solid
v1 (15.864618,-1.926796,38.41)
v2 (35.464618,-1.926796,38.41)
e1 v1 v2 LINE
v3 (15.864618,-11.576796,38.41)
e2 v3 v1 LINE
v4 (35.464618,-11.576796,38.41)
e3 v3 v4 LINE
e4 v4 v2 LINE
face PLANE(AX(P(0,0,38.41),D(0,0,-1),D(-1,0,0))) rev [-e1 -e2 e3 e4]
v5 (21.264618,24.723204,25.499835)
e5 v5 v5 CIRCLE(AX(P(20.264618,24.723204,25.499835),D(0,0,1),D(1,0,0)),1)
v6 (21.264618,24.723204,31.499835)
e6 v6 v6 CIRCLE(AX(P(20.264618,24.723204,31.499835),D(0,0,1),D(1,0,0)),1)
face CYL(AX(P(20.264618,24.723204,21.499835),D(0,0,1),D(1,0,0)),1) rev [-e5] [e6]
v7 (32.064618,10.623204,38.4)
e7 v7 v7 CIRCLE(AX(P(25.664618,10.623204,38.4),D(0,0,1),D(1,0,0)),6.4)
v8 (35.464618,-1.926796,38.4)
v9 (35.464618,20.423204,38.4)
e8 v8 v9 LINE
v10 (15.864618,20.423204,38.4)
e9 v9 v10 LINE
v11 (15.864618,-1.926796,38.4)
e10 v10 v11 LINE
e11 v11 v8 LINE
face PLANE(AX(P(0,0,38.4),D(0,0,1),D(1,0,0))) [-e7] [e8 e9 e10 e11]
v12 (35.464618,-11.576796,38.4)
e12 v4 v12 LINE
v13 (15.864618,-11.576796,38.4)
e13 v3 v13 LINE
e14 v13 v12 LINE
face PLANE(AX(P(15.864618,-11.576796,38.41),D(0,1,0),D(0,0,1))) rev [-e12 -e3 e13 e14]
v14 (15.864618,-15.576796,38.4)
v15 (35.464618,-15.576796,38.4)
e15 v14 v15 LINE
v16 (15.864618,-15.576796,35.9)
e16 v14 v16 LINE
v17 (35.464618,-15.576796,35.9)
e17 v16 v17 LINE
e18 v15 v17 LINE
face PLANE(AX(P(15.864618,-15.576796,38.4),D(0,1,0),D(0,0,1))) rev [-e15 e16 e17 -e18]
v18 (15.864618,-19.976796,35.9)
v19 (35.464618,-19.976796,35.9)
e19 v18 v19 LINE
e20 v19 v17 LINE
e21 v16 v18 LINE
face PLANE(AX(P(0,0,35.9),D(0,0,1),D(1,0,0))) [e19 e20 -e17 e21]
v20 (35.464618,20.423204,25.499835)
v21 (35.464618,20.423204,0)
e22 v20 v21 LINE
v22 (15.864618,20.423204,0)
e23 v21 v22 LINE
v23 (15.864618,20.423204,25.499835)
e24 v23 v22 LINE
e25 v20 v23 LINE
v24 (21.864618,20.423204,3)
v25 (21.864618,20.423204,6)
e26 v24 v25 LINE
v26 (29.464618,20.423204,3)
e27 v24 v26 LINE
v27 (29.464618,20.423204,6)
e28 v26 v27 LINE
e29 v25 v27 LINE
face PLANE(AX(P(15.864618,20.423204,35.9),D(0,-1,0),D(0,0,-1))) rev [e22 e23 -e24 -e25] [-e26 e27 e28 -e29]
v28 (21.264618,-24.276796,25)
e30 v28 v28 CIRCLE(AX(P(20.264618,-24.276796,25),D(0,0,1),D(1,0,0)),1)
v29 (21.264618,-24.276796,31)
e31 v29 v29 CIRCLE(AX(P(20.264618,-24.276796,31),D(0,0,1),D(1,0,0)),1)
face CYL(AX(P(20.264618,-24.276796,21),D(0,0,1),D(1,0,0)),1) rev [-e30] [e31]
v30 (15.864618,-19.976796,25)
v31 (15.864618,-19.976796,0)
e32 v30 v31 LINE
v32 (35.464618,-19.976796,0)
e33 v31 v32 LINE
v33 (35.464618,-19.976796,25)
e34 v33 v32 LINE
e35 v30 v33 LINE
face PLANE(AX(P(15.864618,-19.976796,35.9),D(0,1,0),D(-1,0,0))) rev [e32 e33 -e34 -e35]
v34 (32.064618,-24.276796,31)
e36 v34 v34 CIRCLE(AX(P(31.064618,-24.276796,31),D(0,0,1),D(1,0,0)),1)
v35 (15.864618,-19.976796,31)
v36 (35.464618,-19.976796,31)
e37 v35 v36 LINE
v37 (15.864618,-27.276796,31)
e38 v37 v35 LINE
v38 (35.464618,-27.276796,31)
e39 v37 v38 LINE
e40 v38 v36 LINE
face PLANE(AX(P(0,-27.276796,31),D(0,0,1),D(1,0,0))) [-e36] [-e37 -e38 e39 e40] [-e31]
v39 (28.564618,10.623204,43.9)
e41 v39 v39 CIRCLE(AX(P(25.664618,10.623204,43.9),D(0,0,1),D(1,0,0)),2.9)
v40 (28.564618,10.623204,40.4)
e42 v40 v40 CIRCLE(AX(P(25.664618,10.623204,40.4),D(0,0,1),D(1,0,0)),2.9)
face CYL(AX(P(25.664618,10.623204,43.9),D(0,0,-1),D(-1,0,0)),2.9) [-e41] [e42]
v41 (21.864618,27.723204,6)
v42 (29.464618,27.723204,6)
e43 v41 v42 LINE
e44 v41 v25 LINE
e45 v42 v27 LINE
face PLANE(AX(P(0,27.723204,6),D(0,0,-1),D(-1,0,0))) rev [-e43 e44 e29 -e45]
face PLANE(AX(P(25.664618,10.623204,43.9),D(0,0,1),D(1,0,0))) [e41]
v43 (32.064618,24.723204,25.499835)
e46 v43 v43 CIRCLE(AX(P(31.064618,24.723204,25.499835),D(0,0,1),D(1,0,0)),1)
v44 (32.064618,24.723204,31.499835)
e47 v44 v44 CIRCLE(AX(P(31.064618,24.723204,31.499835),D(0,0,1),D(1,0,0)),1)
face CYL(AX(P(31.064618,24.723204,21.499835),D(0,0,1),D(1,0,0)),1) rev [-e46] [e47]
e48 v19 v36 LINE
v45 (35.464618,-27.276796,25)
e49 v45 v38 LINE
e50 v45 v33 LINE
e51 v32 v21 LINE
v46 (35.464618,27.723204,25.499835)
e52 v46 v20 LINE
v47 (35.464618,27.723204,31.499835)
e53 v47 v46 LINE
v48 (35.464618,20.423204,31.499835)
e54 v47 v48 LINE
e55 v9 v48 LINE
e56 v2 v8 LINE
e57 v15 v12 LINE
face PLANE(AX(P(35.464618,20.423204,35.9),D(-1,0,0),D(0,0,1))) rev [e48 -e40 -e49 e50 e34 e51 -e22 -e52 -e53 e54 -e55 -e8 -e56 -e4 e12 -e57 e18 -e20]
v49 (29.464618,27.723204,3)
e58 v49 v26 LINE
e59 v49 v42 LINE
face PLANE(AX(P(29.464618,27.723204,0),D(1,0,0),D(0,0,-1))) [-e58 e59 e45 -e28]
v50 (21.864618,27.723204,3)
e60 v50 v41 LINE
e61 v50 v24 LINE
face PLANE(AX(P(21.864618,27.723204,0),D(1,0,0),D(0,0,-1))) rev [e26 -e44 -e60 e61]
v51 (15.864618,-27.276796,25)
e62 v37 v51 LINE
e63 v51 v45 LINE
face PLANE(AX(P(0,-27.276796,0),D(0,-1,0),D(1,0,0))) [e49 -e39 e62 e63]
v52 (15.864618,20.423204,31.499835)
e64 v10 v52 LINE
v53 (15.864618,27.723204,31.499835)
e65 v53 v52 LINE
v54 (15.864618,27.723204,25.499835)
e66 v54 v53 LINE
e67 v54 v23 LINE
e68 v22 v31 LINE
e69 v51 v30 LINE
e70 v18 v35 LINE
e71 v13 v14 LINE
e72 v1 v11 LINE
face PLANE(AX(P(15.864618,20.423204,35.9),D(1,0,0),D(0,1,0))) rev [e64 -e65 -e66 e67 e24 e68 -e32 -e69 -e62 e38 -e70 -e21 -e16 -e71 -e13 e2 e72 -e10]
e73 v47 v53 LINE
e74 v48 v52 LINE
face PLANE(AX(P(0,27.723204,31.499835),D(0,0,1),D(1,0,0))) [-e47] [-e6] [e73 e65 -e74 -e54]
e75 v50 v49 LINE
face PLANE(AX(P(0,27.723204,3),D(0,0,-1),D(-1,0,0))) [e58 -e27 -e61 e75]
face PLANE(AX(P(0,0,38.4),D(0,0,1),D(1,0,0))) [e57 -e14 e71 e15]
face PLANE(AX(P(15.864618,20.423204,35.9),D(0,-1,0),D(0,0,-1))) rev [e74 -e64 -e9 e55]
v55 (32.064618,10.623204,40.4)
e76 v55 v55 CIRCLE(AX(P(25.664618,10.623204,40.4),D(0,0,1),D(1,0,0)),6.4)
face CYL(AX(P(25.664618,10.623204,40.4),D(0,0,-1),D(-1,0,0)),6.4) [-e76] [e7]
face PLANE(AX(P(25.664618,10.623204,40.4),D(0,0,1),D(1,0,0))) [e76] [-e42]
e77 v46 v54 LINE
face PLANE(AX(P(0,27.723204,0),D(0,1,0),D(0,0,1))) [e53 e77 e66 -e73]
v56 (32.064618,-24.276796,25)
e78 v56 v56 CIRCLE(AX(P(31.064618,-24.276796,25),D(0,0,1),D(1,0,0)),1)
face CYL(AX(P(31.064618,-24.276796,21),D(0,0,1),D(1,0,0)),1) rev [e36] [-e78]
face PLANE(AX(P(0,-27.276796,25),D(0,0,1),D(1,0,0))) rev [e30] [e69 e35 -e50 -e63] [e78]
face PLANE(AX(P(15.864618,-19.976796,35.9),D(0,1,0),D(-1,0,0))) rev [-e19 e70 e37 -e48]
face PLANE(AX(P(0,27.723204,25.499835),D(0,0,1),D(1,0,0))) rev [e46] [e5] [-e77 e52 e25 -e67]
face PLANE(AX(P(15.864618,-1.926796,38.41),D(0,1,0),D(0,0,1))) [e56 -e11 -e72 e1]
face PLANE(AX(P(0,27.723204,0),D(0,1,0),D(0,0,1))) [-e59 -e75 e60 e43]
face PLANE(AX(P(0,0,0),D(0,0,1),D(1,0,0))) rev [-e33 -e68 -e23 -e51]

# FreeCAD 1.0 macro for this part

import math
import FreeCAD as App
import Part
import Sketcher
Q = App.Units.Quantity

doc = App.newDocument("Part")
params = doc.addObject("Spreadsheet::Sheet", "Params")
for row, (alias, value) in enumerate([
    ("sketch1_width", "19.6 mm"),
    ("sketch1_height", "40.4 mm"),
    ("pad1_length", "35.9 mm"),
    ("sketch2_height", "36 mm"),
    ("sketch2_width", "19.6 mm"),
    ("pad2_length", "2.5 mm"),
    ("sketch3_height", "6 mm"),
    ("sketch3_width", "19.6 mm"),
    ("pad3_length", "7.3 mm"),
    ("sketch4_height", "6 mm"),
    ("sketch4_width", "19.6 mm"),
    ("pad4_length", "7.3 mm"),
    ("sketch5_height", "3 mm"),
    ("sketch5_width", "7.6 mm"),
    ("pad5_length", "7.3 mm"),
    ("sketch6_diameter", "12.8 mm"),
    ("pad6_length", "2 mm"),
    ("sketch7_diameter", "5.8 mm"),
    ("pad7_length", "3.5 mm"),
    ("sketch8_width", "19.6 mm"),
    ("sketch8_height", "9.65 mm"),
    ("pad8_length", "0.01 mm"),
    ("sketch9_diameter", "2 mm"),
    ("pocket1_length", "10 mm"),
    ("sketch10_radius", "1 mm"),
    ("pocket2_length", "10 mm"),
    ("sketch11_diameter", "2 mm"),
    ("pocket3_length", "10 mm"),
], start=1):
    params.set(f"A{row}", alias)
    params.set(f"B{row}", "=" + value)
    params.setAlias(f"B{row}", alias)

body = doc.addObject("PartDesign::Body", "Body")

# Sketch on XY plane
sketch1 = body.newObject("Sketcher::SketchObject", "Sketch")
sketch1.AttachmentSupport = (doc.getObject("XY_Plane"), [""])
sketch1.MapMode = "FlatFace"
sketch1.addGeometry(Part.LineSegment(App.Vector(16, 20, 0), App.Vector(16, -20, 0)), False)
sketch1.addGeometry(Part.LineSegment(App.Vector(16, -20, 0), App.Vector(35, -20, 0)), False)
sketch1.addGeometry(Part.LineSegment(App.Vector(35, -20, 0), App.Vector(35, 20, 0)), False)
sketch1.addGeometry(Part.LineSegment(App.Vector(35, 20, 0), App.Vector(16, 20, 0)), False)
sketch1.addConstraint(Sketcher.Constraint("Coincident", 0, 2, 1, 1))
sketch1.addConstraint(Sketcher.Constraint("Coincident", 1, 2, 2, 1))
sketch1.addConstraint(Sketcher.Constraint("Coincident", 2, 2, 3, 1))
sketch1.addConstraint(Sketcher.Constraint("Coincident", 3, 2, 0, 1))
sketch1.addConstraint(Sketcher.Constraint("Vertical", 0))
sketch1.addConstraint(Sketcher.Constraint("Horizontal", 1))
sketch1.addConstraint(Sketcher.Constraint("Vertical", 2))
sketch1.addConstraint(Sketcher.Constraint("Horizontal", 3))
sketch1.addConstraint(Sketcher.Constraint("DistanceX", 1, 1, 1, 2, Q("19.6 mm")))
sketch1.addConstraint(Sketcher.Constraint("DistanceY", 0, 2, 0, 1, Q("40.4 mm")))
sketch1.addConstraint(Sketcher.Constraint("DistanceX", -1, 1, 0, 2, Q("15.864618 mm")))
sketch1.addConstraint(Sketcher.Constraint("DistanceY", 0, 2, -1, 1, Q("19.976796 mm")))
sketch1.setExpression("Constraints[8]", "Params.sketch1_width")
sketch1.setExpression("Constraints[9]", "Params.sketch1_height")
pad1 = body.newObject("PartDesign::Pad", "Pad")
pad1.Profile = sketch1
pad1.setExpression("Length", "Params.pad1_length")

# Sketch on XY plane
sketch2 = body.newObject("Sketcher::SketchObject", "Sketch001")
sketch2.AttachmentSupport = (doc.getObject("XY_Plane"), [""])
sketch2.MapMode = "FlatFace"
sketch2.AttachmentOffset = App.Placement(App.Vector(0, 0, 35.9), App.Rotation())
sketch2.addGeometry(Part.LineSegment(App.Vector(16, 20, 0), App.Vector(16, -16, 0)), False)
sketch2.addGeometry(Part.LineSegment(App.Vector(16, -16, 0), App.Vector(35, -16, 0)), False)
sketch2.addGeometry(Part.LineSegment(App.Vector(35, -16, 0), App.Vector(35, 20, 0)), False)
sketch2.addGeometry(Part.LineSegment(App.Vector(35, 20, 0), App.Vector(16, 20, 0)), False)
sketch2.addConstraint(Sketcher.Constraint("Coincident", 0, 2, 1, 1))
sketch2.addConstraint(Sketcher.Constraint("Coincident", 1, 2, 2, 1))
sketch2.addConstraint(Sketcher.Constraint("Coincident", 2, 2, 3, 1))
sketch2.addConstraint(Sketcher.Constraint("Coincident", 3, 2, 0, 1))
sketch2.addConstraint(Sketcher.Constraint("Vertical", 0))
sketch2.addConstraint(Sketcher.Constraint("Horizontal", 1))
sketch2.addConstraint(Sketcher.Constraint("Vertical", 2))
sketch2.addConstraint(Sketcher.Constraint("Horizontal", 3))
sketch2.addConstraint(Sketcher.Constraint("DistanceY", 0, 2, 0, 1, Q("36 mm")))
sketch2.addConstraint(Sketcher.Constraint("DistanceX", 1, 1, 1, 2, Q("19.6 mm")))
sketch2.addConstraint(Sketcher.Constraint("DistanceX", -1, 1, 0, 2, Q("15.864618 mm")))
sketch2.addConstraint(Sketcher.Constraint("DistanceY", 0, 2, -1, 1, Q("15.576796 mm")))
sketch2.setExpression("Constraints[8]", "Params.sketch2_height")
sketch2.setExpression("Constraints[9]", "Params.sketch2_width")
pad2 = body.newObject("PartDesign::Pad", "Pad001")
pad2.Profile = sketch2
pad2.setExpression("Length", "Params.pad2_length")

# Sketch on XZ plane
sketch3 = body.newObject("Sketcher::SketchObject", "Sketch002")
sketch3.AttachmentSupport = (doc.getObject("XZ_Plane"), [""])
sketch3.MapMode = "FlatFace"
sketch3.AttachmentOffset = App.Placement(App.Vector(0, 0, -20.423204), App.Rotation())
sketch3.addGeometry(Part.LineSegment(App.Vector(35, 31, 0), App.Vector(35, 25, 0)), False)
sketch3.addGeometry(Part.LineSegment(App.Vector(35, 25, 0), App.Vector(16, 25, 0)), False)
sketch3.addGeometry(Part.LineSegment(App.Vector(16, 25, 0), App.Vector(16, 31, 0)), False)
sketch3.addGeometry(Part.LineSegment(App.Vector(16, 31, 0), App.Vector(35, 31, 0)), False)
sketch3.addConstraint(Sketcher.Constraint("Coincident", 0, 2, 1, 1))
sketch3.addConstraint(Sketcher.Constraint("Coincident", 1, 2, 2, 1))
sketch3.addConstraint(Sketcher.Constraint("Coincident", 2, 2, 3, 1))
sketch3.addConstraint(Sketcher.Constraint("Coincident", 3, 2, 0, 1))
sketch3.addConstraint(Sketcher.Constraint("Vertical", 0))
sketch3.addConstraint(Sketcher.Constraint("Horizontal", 1))
sketch3.addConstraint(Sketcher.Constraint("Vertical", 2))
sketch3.addConstraint(Sketcher.Constraint("Horizontal", 3))
sketch3.addConstraint(Sketcher.Constraint("DistanceY", 0, 2, 0, 1, Q("6 mm")))
sketch3.addConstraint(Sketcher.Constraint("DistanceX", 1, 2, 1, 1, Q("19.6 mm")))
sketch3.addConstraint(Sketcher.Constraint("DistanceX", -1, 1, 0, 2, Q("35.464618 mm")))
sketch3.addConstraint(Sketcher.Constraint("DistanceY", -1, 1, 0, 2, Q("25.499835 mm")))
sketch3.setExpression("Constraints[8]", "Params.sketch3_height")
sketch3.setExpression("Constraints[9]", "Params.sketch3_width")
pad3 = body.newObject("PartDesign::Pad", "Pad002")
pad3.Profile = sketch3
pad3.setExpression("Length", "Params.pad3_length")
pad3.Reversed = True

# Sketch on XZ plane
sketch4 = body.newObject("Sketcher::SketchObject", "Sketch003")
sketch4.AttachmentSupport = (doc.getObject("XZ_Plane"), [""])
sketch4.MapMode = "FlatFace"
sketch4.AttachmentOffset = App.Placement(App.Vector(0, 0, 19.976796), App.Rotation())
sketch4.addGeometry(Part.LineSegment(App.Vector(16, 31, 0), App.Vector(16, 25, 0)), False)
sketch4.addGeometry(Part.LineSegment(App.Vector(16, 25, 0), App.Vector(35, 25, 0)), False)
sketch4.addGeometry(Part.LineSegment(App.Vector(35, 25, 0), App.Vector(35, 31, 0)), False)
sketch4.addGeometry(Part.LineSegment(App.Vector(35, 31, 0), App.Vector(16, 31, 0)), False)
sketch4.addConstraint(Sketcher.Constraint("Coincident", 0, 2, 1, 1))
sketch4.addConstraint(Sketcher.Constraint("Coincident", 1, 2, 2, 1))
sketch4.addConstraint(Sketcher.Constraint("Coincident", 2, 2, 3, 1))
sketch4.addConstraint(Sketcher.Constraint("Coincident", 3, 2, 0, 1))
sketch4.addConstraint(Sketcher.Constraint("Vertical", 0))
sketch4.addConstraint(Sketcher.Constraint("Horizontal", 1))
sketch4.addConstraint(Sketcher.Constraint("Vertical", 2))
sketch4.addConstraint(Sketcher.Constraint("Horizontal", 3))
sketch4.addConstraint(Sketcher.Constraint("DistanceY", 0, 2, 0, 1, Q("6 mm")))
sketch4.addConstraint(Sketcher.Constraint("DistanceX", 1, 1, 1, 2, Q("19.6 mm")))
sketch4.addConstraint(Sketcher.Constraint("DistanceY", -1, 1, 0, 2, Q("25 mm")))
sketch4.addConstraint(Sketcher.Constraint("DistanceX", -1, 1, 0, 2, Q("15.864618 mm")))
sketch4.setExpression("Constraints[8]", "Params.sketch4_height")
sketch4.setExpression("Constraints[9]", "Params.sketch4_width")
pad4 = body.newObject("PartDesign::Pad", "Pad003")
pad4.Profile = sketch4
pad4.setExpression("Length", "Params.pad4_length")

# Sketch on XZ plane
sketch5 = body.newObject("Sketcher::SketchObject", "Sketch004")
sketch5.AttachmentSupport = (doc.getObject("XZ_Plane"), [""])
sketch5.MapMode = "FlatFace"
sketch5.AttachmentOffset = App.Placement(App.Vector(0, 0, -20.423204), App.Rotation())
sketch5.addGeometry(Part.LineSegment(App.Vector(29.5, 3, 0), App.Vector(21.9, 3, 0)), False)
sketch5.addGeometry(Part.LineSegment(App.Vector(21.9, 3, 0), App.Vector(21.9, 6, 0)), False)
sketch5.addGeometry(Part.LineSegment(App.Vector(21.9, 6, 0), App.Vector(29.5, 6, 0)), False)
sketch5.addGeometry(Part.LineSegment(App.Vector(29.5, 6, 0), App.Vector(29.5, 3, 0)), False)
sketch5.addConstraint(Sketcher.Constraint("Coincident", 0, 2, 1, 1))
sketch5.addConstraint(Sketcher.Constraint("Coincident", 1, 2, 2, 1))
sketch5.addConstraint(Sketcher.Constraint("Coincident", 2, 2, 3, 1))
sketch5.addConstraint(Sketcher.Constraint("Coincident", 3, 2, 0, 1))
sketch5.addConstraint(Sketcher.Constraint("Horizontal", 0))
sketch5.addConstraint(Sketcher.Constraint("Vertical", 1))
sketch5.addConstraint(Sketcher.Constraint("Horizontal", 2))
sketch5.addConstraint(Sketcher.Constraint("Vertical", 3))
sketch5.addConstraint(Sketcher.Constraint("DistanceY", 1, 1, 1, 2, Q("3 mm")))
sketch5.addConstraint(Sketcher.Constraint("DistanceX", 0, 2, 0, 1, Q("7.6 mm")))
sketch5.addConstraint(Sketcher.Constraint("DistanceY", -1, 1, 0, 2, Q("3 mm")))
sketch5.addConstraint(Sketcher.Constraint("DistanceX", -1, 1, 0, 2, Q("21.864618 mm")))
sketch5.setExpression("Constraints[8]", "Params.sketch5_height")
sketch5.setExpression("Constraints[9]", "Params.sketch5_width")
pad5 = body.newObject("PartDesign::Pad", "Pad004")
pad5.Profile = sketch5
pad5.setExpression("Length", "Params.pad5_length")
pad5.Reversed = True

# Sketch on XY plane
sketch6 = body.newObject("Sketcher::SketchObject", "Sketch005")
sketch6.AttachmentSupport = (doc.getObject("XY_Plane"), [""])
sketch6.MapMode = "FlatFace"
sketch6.AttachmentOffset = App.Placement(App.Vector(0, 0, 38.4), App.Rotation())
sketch6.addGeometry(Part.Circle(App.Vector(26, 11, 0), App.Vector(0, 0, 1), 6), False)
sketch6.addConstraint(Sketcher.Constraint("Diameter", 0, Q("12.8 mm")))
sketch6.addConstraint(Sketcher.Constraint("DistanceX", -1, 1, 0, 3, Q("25.664618 mm")))
sketch6.addConstraint(Sketcher.Constraint("DistanceY", -1, 1, 0, 3, Q("10.623204 mm")))
sketch6.setExpression("Constraints[0]", "Params.sketch6_diameter")
pad6 = body.newObject("PartDesign::Pad", "Pad005")
pad6.Profile = sketch6
pad6.setExpression("Length", "Params.pad6_length")

# Sketch on XY plane
sketch7 = body.newObject("Sketcher::SketchObject", "Sketch006")
sketch7.AttachmentSupport = (doc.getObject("XY_Plane"), [""])
sketch7.MapMode = "FlatFace"
sketch7.AttachmentOffset = App.Placement(App.Vector(0, 0, 40.4), App.Rotation())
sketch7.addGeometry(Part.Circle(App.Vector(25.7, 10.6, 0), App.Vector(0, 0, 1), 2.9), False)
sketch7.addConstraint(Sketcher.Constraint("Diameter", 0, Q("5.8 mm")))
sketch7.addConstraint(Sketcher.Constraint("DistanceX", -1, 1, 0, 3, Q("25.664618 mm")))
sketch7.addConstraint(Sketcher.Constraint("DistanceY", -1, 1, 0, 3, Q("10.623204 mm")))
sketch7.setExpression("Constraints[0]", "Params.sketch7_diameter")
pad7 = body.newObject("PartDesign::Pad", "Pad006")
pad7.Profile = sketch7
pad7.setExpression("Length", "Params.pad7_length")

# Sketch on XY plane
sketch8 = body.newObject("Sketcher::SketchObject", "Sketch007")
sketch8.AttachmentSupport = (doc.getObject("XY_Plane"), [""])
sketch8.MapMode = "FlatFace"
sketch8.AttachmentOffset = App.Placement(App.Vector(0, 0, 38.4), App.Rotation())
sketch8.addGeometry(Part.LineSegment(App.Vector(16, -2, 0), App.Vector(16, -12, 0)), False)
sketch8.addGeometry(Part.LineSegment(App.Vector(16, -12, 0), App.Vector(35, -12, 0)), False)
sketch8.addGeometry(Part.LineSegment(App.Vector(35, -12, 0), App.Vector(35, -2, 0)), False)
sketch8.addGeometry(Part.LineSegment(App.Vector(35, -2, 0), App.Vector(16, -2, 0)), False)
sketch8.addConstraint(Sketcher.Constraint("Coincident", 0, 2, 1, 1))
sketch8.addConstraint(Sketcher.Constraint("Coincident", 1, 2, 2, 1))
sketch8.addConstraint(Sketcher.Constraint("Coincident", 2, 2, 3, 1))
sketch8.addConstraint(Sketcher.Constraint("Coincident", 3, 2, 0, 1))
sketch8.addConstraint(Sketcher.Constraint("Vertical", 0))
sketch8.addConstraint(Sketcher.Constraint("Horizontal", 1))
sketch8.addConstraint(Sketcher.Constraint("Vertical", 2))
sketch8.addConstraint(Sketcher.Constraint("Horizontal", 3))
sketch8.addConstraint(Sketcher.Constraint("DistanceX", 1, 1, 1, 2, Q("19.6 mm")))
sketch8.addConstraint(Sketcher.Constraint("DistanceY", 0, 2, 0, 1, Q("9.65 mm")))
sketch8.addConstraint(Sketcher.Constraint("DistanceX", -1, 1, 0, 2, Q("15.864618 mm")))
sketch8.addConstraint(Sketcher.Constraint("DistanceY", 0, 2, -1, 1, Q("11.576796 mm")))
sketch8.setExpression("Constraints[8]", "Params.sketch8_width")
sketch8.setExpression("Constraints[9]", "Params.sketch8_height")
pad8 = body.newObject("PartDesign::Pad", "Pad007")
pad8.Profile = sketch8
pad8.setExpression("Length", "Params.pad8_length")

# Sketch on XY plane
sketch9 = body.newObject("Sketcher::SketchObject", "Sketch008")
sketch9.AttachmentSupport = (doc.getObject("XY_Plane"), [""])
sketch9.MapMode = "FlatFace"
sketch9.AttachmentOffset = App.Placement(App.Vector(0, 0, 31.499835), App.Rotation())
sketch9.addGeometry(Part.Circle(App.Vector(31.1, 24.7, 0), App.Vector(0, 0, 1), 1), False)
sketch9.addConstraint(Sketcher.Constraint("Diameter", 0, Q("2 mm")))
sketch9.addConstraint(Sketcher.Constraint("DistanceX", -1, 1, 0, 3, Q("31.064618 mm")))
sketch9.addConstraint(Sketcher.Constraint("DistanceY", -1, 1, 0, 3, Q("24.723204 mm")))
sketch9.setExpression("Constraints[0]", "Params.sketch9_diameter")
pocket1 = body.newObject("PartDesign::Pocket", "Pocket")
pocket1.Profile = sketch9
pocket1.setExpression("Length", "Params.pocket1_length")

# Sketch on XY plane
sketch10 = body.newObject("Sketcher::SketchObject", "Sketch009")
sketch10.AttachmentSupport = (doc.getObject("XY_Plane"), [""])
sketch10.MapMode = "FlatFace"
sketch10.AttachmentOffset = App.Placement(App.Vector(0, 0, 31.499835), App.Rotation())
sketch10.addGeometry(Part.ArcOfCircle(Part.Circle(App.Vector(20.3, 24.7, 0), App.Vector(0, 0, 1), 1), math.radians(0), math.radians(90)), False)
sketch10.addGeometry(Part.ArcOfCircle(Part.Circle(App.Vector(20.3, 24.7, 0), App.Vector(0, 0, 1), 1), math.radians(90), math.radians(180)), False)
sketch10.addGeometry(Part.ArcOfCircle(Part.Circle(App.Vector(20.3, 24.7, 0), App.Vector(0, 0, 1), 1), math.radians(180), math.radians(360)), False)
sketch10.addConstraint(Sketcher.Constraint("Tangent", 0, 2, 1, 1))
sketch10.addConstraint(Sketcher.Constraint("Tangent", 1, 2, 2, 1))
sketch10.addConstraint(Sketcher.Constraint("Tangent", 2, 2, 0, 1))
sketch10.addConstraint(Sketcher.Constraint("Horizontal", 2, 3, 1, 2))
sketch10.addConstraint(Sketcher.Constraint("Horizontal", 1, 2, 2, 2))
sketch10.addConstraint(Sketcher.Constraint("Vertical", 2, 3, 0, 2))
sketch10.addConstraint(Sketcher.Constraint("Radius", 0, Q("1 mm")))
sketch10.addConstraint(Sketcher.Constraint("DistanceX", -1, 1, 0, 3, Q("20.264618 mm")))
sketch10.addConstraint(Sketcher.Constraint("DistanceY", -1, 1, 0, 3, Q("24.723204 mm")))
sketch10.setExpression("Constraints[6]", "Params.sketch10_radius")
pocket2 = body.newObject("PartDesign::Pocket", "Pocket001")
pocket2.Profile = sketch10
pocket2.setExpression("Length", "Params.pocket2_length")

# Sketch on XY plane
sketch11 = body.newObject("Sketcher::SketchObject", "Sketch010")
sketch11.AttachmentSupport = (doc.getObject("XY_Plane"), [""])
sketch11.MapMode = "FlatFace"
sketch11.AttachmentOffset = App.Placement(App.Vector(0, 0, 31), App.Rotation())
sketch11.addGeometry(Part.Circle(App.Vector(20.3, -24.3, 0), App.Vector(0, 0, 1), 1), False)
sketch11.addGeometry(Part.Circle(App.Vector(31.1, -24.3, 0), App.Vector(0, 0, 1), 1), False)
sketch11.addConstraint(Sketcher.Constraint("Equal", 0, 1))
sketch11.addConstraint(Sketcher.Constraint("Horizontal", 0, 3, 1, 3))
sketch11.addConstraint(Sketcher.Constraint("Diameter", 0, Q("2 mm")))
sketch11.addConstraint(Sketcher.Constraint("DistanceX", 0, 3, 1, 3, Q("10.8 mm")))
sketch11.addConstraint(Sketcher.Constraint("DistanceX", -1, 1, 0, 3, Q("20.264618 mm")))
sketch11.addConstraint(Sketcher.Constraint("DistanceY", 0, 3, -1, 1, Q("24.276796 mm")))
sketch11.setExpression("Constraints[2]", "Params.sketch11_diameter")
pocket3 = body.newObject("PartDesign::Pocket", "Pocket002")
pocket3.Profile = sketch11
pocket3.setExpression("Length", "Params.pocket3_length")

doc.recompute()
